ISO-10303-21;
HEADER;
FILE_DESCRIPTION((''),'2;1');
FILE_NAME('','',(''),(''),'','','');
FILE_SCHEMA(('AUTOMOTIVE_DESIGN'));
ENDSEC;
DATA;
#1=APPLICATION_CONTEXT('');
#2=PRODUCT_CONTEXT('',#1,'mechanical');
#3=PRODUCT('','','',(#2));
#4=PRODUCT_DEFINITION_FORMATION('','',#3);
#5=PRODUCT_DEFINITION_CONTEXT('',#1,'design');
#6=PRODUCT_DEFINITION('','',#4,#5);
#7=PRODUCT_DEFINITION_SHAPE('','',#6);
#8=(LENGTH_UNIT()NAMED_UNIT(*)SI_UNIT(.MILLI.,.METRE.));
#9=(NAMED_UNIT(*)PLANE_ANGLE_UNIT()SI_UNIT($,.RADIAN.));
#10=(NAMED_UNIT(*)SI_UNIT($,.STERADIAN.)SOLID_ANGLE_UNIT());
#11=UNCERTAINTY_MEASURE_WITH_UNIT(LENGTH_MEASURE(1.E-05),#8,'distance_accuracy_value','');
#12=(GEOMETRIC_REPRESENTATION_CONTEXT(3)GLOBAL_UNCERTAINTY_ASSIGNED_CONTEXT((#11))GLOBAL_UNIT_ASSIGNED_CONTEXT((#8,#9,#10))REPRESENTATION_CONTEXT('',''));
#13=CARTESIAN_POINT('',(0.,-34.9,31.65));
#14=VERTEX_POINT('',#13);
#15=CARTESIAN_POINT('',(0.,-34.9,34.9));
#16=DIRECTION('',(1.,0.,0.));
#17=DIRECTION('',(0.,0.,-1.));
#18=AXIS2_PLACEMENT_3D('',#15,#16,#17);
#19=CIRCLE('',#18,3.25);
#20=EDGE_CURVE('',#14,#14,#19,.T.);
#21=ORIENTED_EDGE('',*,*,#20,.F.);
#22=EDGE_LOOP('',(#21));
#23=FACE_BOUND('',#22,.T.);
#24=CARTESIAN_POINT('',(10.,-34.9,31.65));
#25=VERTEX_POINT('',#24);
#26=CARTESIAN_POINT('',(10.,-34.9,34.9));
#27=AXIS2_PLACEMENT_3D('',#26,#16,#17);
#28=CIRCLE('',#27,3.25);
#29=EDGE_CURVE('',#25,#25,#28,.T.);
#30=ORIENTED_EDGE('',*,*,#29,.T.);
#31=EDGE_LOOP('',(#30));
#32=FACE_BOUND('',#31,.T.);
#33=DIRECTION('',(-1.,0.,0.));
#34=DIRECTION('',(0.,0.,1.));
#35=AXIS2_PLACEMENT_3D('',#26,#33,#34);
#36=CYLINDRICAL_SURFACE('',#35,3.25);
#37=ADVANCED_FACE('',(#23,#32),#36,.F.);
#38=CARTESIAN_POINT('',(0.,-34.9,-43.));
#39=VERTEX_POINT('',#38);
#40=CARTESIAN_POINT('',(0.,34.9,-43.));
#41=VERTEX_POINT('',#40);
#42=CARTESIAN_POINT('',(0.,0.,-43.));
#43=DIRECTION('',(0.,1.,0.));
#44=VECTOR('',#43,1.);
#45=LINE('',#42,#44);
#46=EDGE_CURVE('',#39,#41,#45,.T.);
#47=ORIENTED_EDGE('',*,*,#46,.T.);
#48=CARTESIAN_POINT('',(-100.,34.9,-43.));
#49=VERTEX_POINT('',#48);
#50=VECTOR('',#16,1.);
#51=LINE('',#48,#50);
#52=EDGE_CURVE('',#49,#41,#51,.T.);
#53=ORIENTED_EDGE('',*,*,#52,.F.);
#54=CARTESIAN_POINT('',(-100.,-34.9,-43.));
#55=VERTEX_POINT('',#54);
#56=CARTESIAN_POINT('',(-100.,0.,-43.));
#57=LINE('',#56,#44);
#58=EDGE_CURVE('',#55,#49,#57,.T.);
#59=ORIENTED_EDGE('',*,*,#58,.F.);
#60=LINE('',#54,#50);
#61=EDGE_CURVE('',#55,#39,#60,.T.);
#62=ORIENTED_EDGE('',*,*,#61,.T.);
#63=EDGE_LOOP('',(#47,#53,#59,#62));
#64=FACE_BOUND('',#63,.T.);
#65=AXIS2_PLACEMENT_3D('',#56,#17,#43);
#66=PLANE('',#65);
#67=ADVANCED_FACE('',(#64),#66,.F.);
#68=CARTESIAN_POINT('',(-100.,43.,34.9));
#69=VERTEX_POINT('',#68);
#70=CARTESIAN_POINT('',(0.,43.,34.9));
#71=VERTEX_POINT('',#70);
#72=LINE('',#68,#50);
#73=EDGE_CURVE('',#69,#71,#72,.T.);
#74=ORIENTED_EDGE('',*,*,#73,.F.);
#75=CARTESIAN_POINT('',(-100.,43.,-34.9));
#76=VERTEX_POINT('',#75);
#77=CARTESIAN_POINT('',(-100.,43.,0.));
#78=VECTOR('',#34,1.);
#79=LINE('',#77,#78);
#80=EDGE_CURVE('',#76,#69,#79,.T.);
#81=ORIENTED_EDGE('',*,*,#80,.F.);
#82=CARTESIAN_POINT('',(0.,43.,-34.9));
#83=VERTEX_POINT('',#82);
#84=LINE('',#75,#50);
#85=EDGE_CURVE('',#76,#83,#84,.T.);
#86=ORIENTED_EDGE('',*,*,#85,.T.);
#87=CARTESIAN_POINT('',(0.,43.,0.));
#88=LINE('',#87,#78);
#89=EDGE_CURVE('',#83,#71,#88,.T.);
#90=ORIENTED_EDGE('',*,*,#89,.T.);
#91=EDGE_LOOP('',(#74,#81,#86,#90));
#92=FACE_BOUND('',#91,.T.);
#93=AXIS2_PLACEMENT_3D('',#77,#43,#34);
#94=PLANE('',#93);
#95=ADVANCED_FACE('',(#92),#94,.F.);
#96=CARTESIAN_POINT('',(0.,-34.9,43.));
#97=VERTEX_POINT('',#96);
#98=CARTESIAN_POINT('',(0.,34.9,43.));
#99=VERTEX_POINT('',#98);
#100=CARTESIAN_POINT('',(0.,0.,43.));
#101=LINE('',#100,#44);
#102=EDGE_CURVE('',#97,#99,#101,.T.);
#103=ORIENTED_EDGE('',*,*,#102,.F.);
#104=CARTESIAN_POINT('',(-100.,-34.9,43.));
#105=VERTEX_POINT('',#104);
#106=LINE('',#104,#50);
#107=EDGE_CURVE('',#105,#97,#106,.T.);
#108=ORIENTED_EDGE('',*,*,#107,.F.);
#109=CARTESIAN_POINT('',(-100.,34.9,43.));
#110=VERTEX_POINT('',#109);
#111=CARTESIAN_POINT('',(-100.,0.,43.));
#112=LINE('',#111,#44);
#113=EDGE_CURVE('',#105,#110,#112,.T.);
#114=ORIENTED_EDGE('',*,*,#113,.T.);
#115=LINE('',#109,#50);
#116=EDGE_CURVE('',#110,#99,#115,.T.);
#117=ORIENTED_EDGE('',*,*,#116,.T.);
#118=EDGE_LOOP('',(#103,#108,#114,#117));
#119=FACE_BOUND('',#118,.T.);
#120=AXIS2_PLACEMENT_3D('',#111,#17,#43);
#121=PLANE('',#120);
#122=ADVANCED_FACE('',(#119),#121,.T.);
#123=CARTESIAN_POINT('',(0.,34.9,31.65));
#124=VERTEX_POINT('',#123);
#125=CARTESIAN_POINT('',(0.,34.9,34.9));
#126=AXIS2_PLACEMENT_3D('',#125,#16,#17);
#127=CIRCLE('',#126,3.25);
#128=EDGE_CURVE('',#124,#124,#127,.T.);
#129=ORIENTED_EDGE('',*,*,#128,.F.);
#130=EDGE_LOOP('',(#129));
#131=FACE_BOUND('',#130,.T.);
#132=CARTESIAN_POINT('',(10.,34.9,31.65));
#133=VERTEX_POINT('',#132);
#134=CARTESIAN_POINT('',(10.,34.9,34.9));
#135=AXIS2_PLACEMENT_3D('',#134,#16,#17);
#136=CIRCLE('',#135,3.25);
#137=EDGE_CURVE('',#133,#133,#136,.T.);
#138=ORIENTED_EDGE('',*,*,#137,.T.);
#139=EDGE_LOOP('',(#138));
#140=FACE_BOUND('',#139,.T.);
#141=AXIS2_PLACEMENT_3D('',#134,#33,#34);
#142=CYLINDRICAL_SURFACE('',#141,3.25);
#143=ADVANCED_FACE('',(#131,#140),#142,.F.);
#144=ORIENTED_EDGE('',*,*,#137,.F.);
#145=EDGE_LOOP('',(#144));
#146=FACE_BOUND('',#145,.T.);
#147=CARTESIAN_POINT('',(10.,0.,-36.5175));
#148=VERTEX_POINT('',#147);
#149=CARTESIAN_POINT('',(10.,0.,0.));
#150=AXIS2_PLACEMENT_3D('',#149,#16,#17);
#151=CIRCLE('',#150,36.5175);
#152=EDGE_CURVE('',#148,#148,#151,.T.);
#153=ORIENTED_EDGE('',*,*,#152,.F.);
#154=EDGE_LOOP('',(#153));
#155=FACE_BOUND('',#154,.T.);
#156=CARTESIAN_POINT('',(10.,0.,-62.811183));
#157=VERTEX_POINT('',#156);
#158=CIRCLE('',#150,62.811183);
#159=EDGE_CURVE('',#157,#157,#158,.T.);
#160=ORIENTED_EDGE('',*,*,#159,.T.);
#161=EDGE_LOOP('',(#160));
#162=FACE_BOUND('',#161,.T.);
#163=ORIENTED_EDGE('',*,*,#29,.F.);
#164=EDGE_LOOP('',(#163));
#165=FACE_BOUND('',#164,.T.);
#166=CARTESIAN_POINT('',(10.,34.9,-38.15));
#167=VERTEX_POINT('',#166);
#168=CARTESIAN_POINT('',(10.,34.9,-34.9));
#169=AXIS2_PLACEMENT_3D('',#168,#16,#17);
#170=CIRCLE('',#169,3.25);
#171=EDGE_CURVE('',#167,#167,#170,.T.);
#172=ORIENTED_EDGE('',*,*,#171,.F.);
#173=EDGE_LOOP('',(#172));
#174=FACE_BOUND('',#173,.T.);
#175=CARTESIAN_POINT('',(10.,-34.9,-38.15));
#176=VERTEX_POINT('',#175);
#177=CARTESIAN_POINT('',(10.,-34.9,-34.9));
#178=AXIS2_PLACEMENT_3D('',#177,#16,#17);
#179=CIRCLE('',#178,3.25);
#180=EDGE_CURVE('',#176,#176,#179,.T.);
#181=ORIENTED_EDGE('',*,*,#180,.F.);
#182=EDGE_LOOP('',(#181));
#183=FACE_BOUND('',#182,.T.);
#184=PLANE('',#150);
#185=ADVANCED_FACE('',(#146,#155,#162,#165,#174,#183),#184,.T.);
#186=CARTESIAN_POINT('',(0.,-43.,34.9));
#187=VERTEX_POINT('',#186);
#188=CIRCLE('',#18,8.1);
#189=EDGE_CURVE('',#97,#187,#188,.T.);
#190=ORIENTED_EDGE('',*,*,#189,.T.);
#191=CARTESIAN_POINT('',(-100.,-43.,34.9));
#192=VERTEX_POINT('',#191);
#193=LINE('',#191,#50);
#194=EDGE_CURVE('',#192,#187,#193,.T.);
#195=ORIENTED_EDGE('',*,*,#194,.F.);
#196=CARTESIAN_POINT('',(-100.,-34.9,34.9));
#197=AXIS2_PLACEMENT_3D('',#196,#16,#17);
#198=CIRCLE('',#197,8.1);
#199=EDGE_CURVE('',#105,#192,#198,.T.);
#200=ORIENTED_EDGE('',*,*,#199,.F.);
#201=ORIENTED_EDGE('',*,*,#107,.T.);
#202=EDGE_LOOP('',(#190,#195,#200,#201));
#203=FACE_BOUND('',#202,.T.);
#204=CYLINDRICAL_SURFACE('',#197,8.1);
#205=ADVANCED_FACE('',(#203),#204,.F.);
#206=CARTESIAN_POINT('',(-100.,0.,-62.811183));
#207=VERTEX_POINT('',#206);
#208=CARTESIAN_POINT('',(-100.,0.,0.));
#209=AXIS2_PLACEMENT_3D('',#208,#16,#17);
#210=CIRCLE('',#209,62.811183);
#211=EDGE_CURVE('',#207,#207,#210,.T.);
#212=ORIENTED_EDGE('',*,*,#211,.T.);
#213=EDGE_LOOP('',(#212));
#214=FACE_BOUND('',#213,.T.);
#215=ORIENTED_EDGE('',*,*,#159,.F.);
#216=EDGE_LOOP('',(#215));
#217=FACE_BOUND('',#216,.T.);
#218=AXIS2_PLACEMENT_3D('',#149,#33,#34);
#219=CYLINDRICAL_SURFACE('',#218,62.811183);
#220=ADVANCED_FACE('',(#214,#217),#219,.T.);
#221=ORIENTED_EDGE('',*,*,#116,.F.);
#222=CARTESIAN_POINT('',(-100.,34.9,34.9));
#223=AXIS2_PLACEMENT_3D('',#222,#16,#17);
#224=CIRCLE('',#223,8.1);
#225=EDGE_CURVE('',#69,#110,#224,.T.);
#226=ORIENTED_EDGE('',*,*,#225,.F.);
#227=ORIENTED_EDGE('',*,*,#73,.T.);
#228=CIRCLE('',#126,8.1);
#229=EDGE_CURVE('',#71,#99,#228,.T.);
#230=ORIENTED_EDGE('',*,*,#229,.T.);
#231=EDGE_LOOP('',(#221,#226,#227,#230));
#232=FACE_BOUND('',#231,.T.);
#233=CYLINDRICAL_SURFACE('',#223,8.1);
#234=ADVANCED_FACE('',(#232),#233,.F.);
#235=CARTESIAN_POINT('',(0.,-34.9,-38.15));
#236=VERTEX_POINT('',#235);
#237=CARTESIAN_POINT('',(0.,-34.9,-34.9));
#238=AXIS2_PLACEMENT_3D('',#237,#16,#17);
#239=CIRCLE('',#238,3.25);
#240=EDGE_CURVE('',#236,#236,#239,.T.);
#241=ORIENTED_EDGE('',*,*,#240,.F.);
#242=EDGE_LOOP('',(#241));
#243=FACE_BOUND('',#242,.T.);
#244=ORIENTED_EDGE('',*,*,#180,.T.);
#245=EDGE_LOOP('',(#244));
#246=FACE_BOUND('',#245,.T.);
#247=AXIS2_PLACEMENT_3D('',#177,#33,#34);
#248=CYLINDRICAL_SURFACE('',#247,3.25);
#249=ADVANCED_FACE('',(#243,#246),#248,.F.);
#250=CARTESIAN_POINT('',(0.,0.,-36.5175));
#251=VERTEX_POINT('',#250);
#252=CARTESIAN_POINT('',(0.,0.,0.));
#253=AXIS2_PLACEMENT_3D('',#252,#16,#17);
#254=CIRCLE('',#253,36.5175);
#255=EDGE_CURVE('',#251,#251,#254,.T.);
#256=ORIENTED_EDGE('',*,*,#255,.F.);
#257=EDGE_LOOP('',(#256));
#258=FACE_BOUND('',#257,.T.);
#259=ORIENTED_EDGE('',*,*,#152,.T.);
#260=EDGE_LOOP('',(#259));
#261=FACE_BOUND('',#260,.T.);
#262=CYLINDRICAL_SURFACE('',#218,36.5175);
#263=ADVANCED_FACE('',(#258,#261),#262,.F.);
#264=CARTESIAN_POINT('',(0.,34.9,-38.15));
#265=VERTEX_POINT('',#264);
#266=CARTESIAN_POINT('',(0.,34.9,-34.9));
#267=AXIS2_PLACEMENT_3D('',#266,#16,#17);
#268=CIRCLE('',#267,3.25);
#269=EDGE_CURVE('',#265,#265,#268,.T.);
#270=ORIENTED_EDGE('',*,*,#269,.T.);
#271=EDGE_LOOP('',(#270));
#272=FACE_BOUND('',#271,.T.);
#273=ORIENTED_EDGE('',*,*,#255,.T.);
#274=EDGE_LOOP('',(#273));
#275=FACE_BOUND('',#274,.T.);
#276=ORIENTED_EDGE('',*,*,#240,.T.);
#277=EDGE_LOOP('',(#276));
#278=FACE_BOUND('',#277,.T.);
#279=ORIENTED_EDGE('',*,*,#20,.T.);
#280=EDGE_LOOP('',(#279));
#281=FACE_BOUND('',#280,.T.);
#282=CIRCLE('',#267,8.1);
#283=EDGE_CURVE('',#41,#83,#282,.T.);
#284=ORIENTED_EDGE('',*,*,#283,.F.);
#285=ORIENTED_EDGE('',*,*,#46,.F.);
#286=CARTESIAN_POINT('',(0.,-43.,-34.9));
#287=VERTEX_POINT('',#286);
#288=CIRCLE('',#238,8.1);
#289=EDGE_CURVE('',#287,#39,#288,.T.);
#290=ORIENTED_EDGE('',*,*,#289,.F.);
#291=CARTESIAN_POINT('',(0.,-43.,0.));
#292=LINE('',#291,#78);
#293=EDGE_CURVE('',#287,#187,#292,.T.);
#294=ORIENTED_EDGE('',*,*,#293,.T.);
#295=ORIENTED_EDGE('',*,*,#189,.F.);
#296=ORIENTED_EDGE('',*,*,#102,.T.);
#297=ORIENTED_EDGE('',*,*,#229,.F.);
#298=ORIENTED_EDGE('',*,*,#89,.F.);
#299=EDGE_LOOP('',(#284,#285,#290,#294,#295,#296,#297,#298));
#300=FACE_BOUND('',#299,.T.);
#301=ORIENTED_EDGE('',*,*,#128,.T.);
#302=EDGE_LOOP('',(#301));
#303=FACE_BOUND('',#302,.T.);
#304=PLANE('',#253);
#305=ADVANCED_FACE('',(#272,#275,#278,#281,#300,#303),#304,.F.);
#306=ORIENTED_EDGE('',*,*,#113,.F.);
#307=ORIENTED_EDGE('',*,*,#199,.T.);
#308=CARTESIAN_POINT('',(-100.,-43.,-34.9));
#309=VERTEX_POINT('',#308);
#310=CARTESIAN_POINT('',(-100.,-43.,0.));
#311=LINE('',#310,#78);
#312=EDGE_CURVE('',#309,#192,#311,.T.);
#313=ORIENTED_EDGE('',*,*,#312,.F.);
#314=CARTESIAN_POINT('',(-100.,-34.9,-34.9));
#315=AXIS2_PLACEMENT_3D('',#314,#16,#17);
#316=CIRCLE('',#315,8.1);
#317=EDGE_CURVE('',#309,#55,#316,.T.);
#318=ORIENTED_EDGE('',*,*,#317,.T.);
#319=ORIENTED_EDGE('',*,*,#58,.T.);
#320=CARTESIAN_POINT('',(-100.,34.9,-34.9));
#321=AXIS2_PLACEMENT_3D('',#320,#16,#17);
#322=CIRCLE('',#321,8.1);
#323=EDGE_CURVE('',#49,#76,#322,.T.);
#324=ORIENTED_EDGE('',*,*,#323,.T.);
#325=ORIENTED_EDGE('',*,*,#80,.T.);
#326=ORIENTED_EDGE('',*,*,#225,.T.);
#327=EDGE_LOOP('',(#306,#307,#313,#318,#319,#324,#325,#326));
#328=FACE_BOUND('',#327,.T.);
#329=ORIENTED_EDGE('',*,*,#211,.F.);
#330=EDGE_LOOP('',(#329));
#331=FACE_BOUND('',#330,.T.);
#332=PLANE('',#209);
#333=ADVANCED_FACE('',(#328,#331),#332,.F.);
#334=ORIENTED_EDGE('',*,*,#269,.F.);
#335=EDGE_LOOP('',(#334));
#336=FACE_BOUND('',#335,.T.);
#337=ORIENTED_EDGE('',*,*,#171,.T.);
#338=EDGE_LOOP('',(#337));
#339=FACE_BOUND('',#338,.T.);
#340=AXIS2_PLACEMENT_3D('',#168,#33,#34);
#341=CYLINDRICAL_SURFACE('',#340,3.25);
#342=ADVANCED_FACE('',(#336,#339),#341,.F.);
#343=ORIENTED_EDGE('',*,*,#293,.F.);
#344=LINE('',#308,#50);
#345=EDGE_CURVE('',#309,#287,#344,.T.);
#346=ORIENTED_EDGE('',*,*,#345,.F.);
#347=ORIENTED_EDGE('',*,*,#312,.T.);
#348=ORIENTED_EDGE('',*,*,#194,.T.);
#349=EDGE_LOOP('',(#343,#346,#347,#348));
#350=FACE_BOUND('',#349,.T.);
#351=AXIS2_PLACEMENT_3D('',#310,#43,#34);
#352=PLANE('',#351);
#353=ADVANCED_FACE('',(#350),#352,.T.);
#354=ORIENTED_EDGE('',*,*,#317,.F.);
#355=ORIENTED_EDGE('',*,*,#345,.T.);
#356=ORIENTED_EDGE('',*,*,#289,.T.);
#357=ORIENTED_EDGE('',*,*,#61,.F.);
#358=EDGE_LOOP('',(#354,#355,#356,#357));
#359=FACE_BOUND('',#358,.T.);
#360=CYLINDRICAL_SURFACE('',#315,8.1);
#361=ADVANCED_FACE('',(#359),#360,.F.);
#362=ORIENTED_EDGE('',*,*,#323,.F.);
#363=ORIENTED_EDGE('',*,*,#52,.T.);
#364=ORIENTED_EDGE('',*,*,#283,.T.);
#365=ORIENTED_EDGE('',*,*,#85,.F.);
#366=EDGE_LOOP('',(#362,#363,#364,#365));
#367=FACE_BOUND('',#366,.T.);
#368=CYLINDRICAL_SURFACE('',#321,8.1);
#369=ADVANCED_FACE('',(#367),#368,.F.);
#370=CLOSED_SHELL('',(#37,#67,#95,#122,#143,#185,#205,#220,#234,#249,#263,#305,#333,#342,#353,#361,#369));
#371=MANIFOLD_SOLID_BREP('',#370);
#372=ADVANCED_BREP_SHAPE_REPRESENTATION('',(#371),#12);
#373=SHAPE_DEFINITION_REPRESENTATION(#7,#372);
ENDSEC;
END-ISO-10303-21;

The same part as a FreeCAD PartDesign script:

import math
import FreeCAD as App
import Part
import Sketcher
Q = App.Units.Quantity

doc = App.newDocument("Part")
body = doc.addObject("PartDesign::Body", "Body")

# Sketch on YZ plane
sketch1 = doc.addObject("Sketcher::SketchObject", "Sketch")
body.addObject(sketch1)
sketch1.AttachmentSupport = (doc.YZ_Plane, [""])
sketch1.MapMode = "FlatFace"
sketch1.addGeometry([
    Part.Circle(App.Vector(0, 0, 0), App.Vector(0, 0, 1), 62.8),  # 0
    Part.Circle(App.Vector(-34.9, 34.9, 0), App.Vector(0, 0, 1), 3.2),  # 1
    Part.Circle(App.Vector(34.9, 34.9, 0), App.Vector(0, 0, 1), 3.2),  # 2
    Part.Circle(App.Vector(34.9, -34.9, 0), App.Vector(0, 0, 1), 3.2),  # 3
    Part.Circle(App.Vector(-34.9, -34.9, 0), App.Vector(0, 0, 1), 3.2),  # 4
    Part.Circle(App.Vector(0, 0, 0), App.Vector(0, 0, 1), 36.5),  # 5
], False)
sketch1.addConstraint([
    Sketcher.Constraint("Coincident", 0, 3, -1, 1),
    Sketcher.Constraint("Coincident", 5, 3, -1, 1),
    Sketcher.Constraint("Equal", 1, 2),
    Sketcher.Constraint("Equal", 2, 3),
    Sketcher.Constraint("Equal", 3, 4),
    Sketcher.Constraint("Symmetric", 1, 3, 3, 3, -1, 1),
    Sketcher.Constraint("Symmetric", 2, 3, 4, 3, -1, 1),
    Sketcher.Constraint("Symmetric", 1, 3, 2, 3, -2),
    Sketcher.Constraint("Diameter", 1, Q("6.5 mm")),
    Sketcher.Constraint("Diameter", 5, Q("73.035 mm")),
    Sketcher.Constraint("DistanceX", 1, 3, -1, 1, Q("34.9 mm")),
    Sketcher.Constraint("DistanceY", -1, 1, 1, 3, Q("34.9 mm")),
    Sketcher.Constraint("Diameter", 0, Q("125.622366 mm")),
])
pad1 = doc.addObject("PartDesign::Pad", "Pad")
body.addObject(pad1)
pad1.Profile = sketch1
pad1.Length = 10

# Sketch on YZ plane
sketch2 = doc.addObject("Sketcher::SketchObject", "Sketch001")
body.addObject(sketch2)
sketch2.AttachmentSupport = (doc.YZ_Plane, [""])
sketch2.MapMode = "FlatFace"
sketch2.AttachmentOffset = App.Placement(App.Vector(0, 0, -100), App.Rotation())
sketch2.addGeometry([
    Part.Circle(App.Vector(0, 0, 0), App.Vector(0, 0, 1), 63),  # 0
    Part.ArcOfCircle(Part.Circle(App.Vector(35, -35, 0), App.Vector(0, 0, 1), 8), math.radians(-90), math.radians(0)),  # 1
    Part.LineSegment(App.Vector(35, -43, 0), App.Vector(-35, -43, 0)),  # 2
    Part.ArcOfCircle(Part.Circle(App.Vector(-35, -35, 0), App.Vector(0, 0, 1), 8), math.radians(180), math.radians(270)),  # 3
    Part.LineSegment(App.Vector(-43, -35, 0), App.Vector(-43, 35, 0)),  # 4
    Part.ArcOfCircle(Part.Circle(App.Vector(-35, 35, 0), App.Vector(0, 0, 1), 8), math.radians(90), math.radians(180)),  # 5
    Part.LineSegment(App.Vector(-35, 43, 0), App.Vector(35, 43, 0)),  # 6
    Part.ArcOfCircle(Part.Circle(App.Vector(35, 35, 0), App.Vector(0, 0, 1), 8), math.radians(0), math.radians(90)),  # 7
    Part.LineSegment(App.Vector(43, 35, 0), App.Vector(43, -35, 0)),  # 8
], False)
sketch2.addConstraint([
    Sketcher.Constraint("Tangent", 1, 1, 2, 1),
    Sketcher.Constraint("Tangent", 2, 2, 3, 2),
    Sketcher.Constraint("Tangent", 3, 1, 4, 1),
    Sketcher.Constraint("Tangent", 4, 2, 5, 2),
    Sketcher.Constraint("Tangent", 5, 1, 6, 1),
    Sketcher.Constraint("Tangent", 6, 2, 7, 2),
    Sketcher.Constraint("Tangent", 7, 1, 8, 1),
    Sketcher.Constraint("Tangent", 8, 2, 1, 2),
    Sketcher.Constraint("Horizontal", 2),
    Sketcher.Constraint("Vertical", 4),
    Sketcher.Constraint("Horizontal", 6),
    Sketcher.Constraint("Vertical", 8),
    Sketcher.Constraint("Coincident", 0, 3, -1, 1),
    Sketcher.Constraint("Equal", 1, 3),
    Sketcher.Constraint("Equal", 3, 5),
    Sketcher.Constraint("Equal", 5, 7),
    Sketcher.Constraint("Symmetric", 1, 3, 5, 3, -1, 1),
    Sketcher.Constraint("Equal", 6, 4),
    Sketcher.Constraint("Radius", 1, Q("8.1 mm")),
    Sketcher.Constraint("DistanceX", 2, 2, 2, 1, Q("69.8 mm")),
    Sketcher.Constraint("Diameter", 0, Q("125.622366 mm")),
])
pad2 = doc.addObject("PartDesign::Pad", "Pad001")
body.addObject(pad2)
pad2.Profile = sketch2
pad2.Length = 100

doc.recompute()
